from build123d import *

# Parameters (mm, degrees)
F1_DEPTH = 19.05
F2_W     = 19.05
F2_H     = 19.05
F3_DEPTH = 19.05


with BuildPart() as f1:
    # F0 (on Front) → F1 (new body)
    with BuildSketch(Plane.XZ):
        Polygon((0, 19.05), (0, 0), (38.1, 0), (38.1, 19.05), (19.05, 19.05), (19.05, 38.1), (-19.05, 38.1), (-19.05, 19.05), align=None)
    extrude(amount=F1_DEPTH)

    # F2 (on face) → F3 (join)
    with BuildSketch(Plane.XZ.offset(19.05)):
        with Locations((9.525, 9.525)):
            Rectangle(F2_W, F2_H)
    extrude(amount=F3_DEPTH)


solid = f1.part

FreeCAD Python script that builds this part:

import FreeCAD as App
import Part
import Sketcher
from FreeCAD import Vector
Q = App.Units.Quantity

doc = App.newDocument("Part")
body = doc.addObject("PartDesign::Body", "Body")

sketch1 = body.newObject("Sketcher::SketchObject", "Sketch")
sketch1.AttachmentSupport = (doc.getObject("XZ_Plane"), [""])
sketch1.MapMode = "FlatFace"
sketch1.addGeometry(Part.LineSegment(Vector(0, 19, 0), Vector(0, 0, 0)), False)
sketch1.addGeometry(Part.LineSegment(Vector(0, 0, 0), Vector(38, 0, 0)), False)
sketch1.addGeometry(Part.LineSegment(Vector(38, 0, 0), Vector(38, 19, 0)), False)
sketch1.addGeometry(Part.LineSegment(Vector(38, 19, 0), Vector(19, 19, 0)), False)
sketch1.addGeometry(Part.LineSegment(Vector(19, 19, 0), Vector(19, 38, 0)), False)
sketch1.addGeometry(Part.LineSegment(Vector(19, 38, 0), Vector(-19, 38, 0)), False)
sketch1.addGeometry(Part.LineSegment(Vector(-19, 38, 0), Vector(-19, 19, 0)), False)
sketch1.addGeometry(Part.LineSegment(Vector(-19, 19, 0), Vector(0, 19, 0)), False)
sketch1.addConstraint(Sketcher.Constraint("Coincident", 0, 2, 1, 1))
sketch1.addConstraint(Sketcher.Constraint("Coincident", 1, 2, 2, 1))
sketch1.addConstraint(Sketcher.Constraint("Coincident", 2, 2, 3, 1))
sketch1.addConstraint(Sketcher.Constraint("Coincident", 3, 2, 4, 1))
sketch1.addConstraint(Sketcher.Constraint("Coincident", 4, 2, 5, 1))
sketch1.addConstraint(Sketcher.Constraint("Coincident", 5, 2, 6, 1))
sketch1.addConstraint(Sketcher.Constraint("Coincident", 6, 2, 7, 1))
sketch1.addConstraint(Sketcher.Constraint("Coincident", 7, 2, 0, 1))
sketch1.addConstraint(Sketcher.Constraint("Vertical", 0))
sketch1.addConstraint(Sketcher.Constraint("Horizontal", 1))
sketch1.addConstraint(Sketcher.Constraint("Vertical", 2))
sketch1.addConstraint(Sketcher.Constraint("Horizontal", 3))
sketch1.addConstraint(Sketcher.Constraint("Vertical", 4))
sketch1.addConstraint(Sketcher.Constraint("Horizontal", 5))
sketch1.addConstraint(Sketcher.Constraint("Vertical", 6))
sketch1.addConstraint(Sketcher.Constraint("Horizontal", 7))
sketch1.addConstraint(Sketcher.Constraint("Coincident", 0, 2, -1, 1))
sketch1.addConstraint(Sketcher.Constraint("Symmetric", 3, 2, 6, 2, -2))
sketch1.addConstraint(Sketcher.Constraint("Equal", 1, 5))
sketch1.addConstraint(Sketcher.Constraint("Equal", 7, 0))
sketch1.addConstraint(Sketcher.Constraint("Equal", 2, 4))
sketch1.addConstraint(Sketcher.Constraint("DistanceX", 1, 1, 1, 2, Q("1.5 in")))
pad1 = body.newObject("PartDesign::Pad", "Pad")
pad1.Profile = sketch1
pad1.Length = Q("0.75 in")

sketch2 = body.newObject("Sketcher::SketchObject", "Sketch001")
sketch2.AttachmentSupport = (doc.getObject("XZ_Plane"), [""])
sketch2.MapMode = "FlatFace"
sketch2.AttachmentOffset = App.Placement(Vector(0, 0, 0.75 * 25.4), App.Rotation())
sketch2.addGeometry(Part.LineSegment(Vector(0, 19, 0), Vector(0, 0, 0)), False)
sketch2.addGeometry(Part.LineSegment(Vector(0, 0, 0), Vector(19, 0, 0)), False)
sketch2.addGeometry(Part.LineSegment(Vector(19, 0, 0), Vector(19, 19, 0)), False)
sketch2.addGeometry(Part.LineSegment(Vector(19, 19, 0), Vector(0, 19, 0)), False)
sketch2.addConstraint(Sketcher.Constraint("Coincident", 0, 2, 1, 1))
sketch2.addConstraint(Sketcher.Constraint("Coincident", 1, 2, 2, 1))
sketch2.addConstraint(Sketcher.Constraint("Coincident", 2, 2, 3, 1))
sketch2.addConstraint(Sketcher.Constraint("Coincident", 3, 2, 0, 1))
sketch2.addConstraint(Sketcher.Constraint("Vertical", 0))
sketch2.addConstraint(Sketcher.Constraint("Horizontal", 1))
sketch2.addConstraint(Sketcher.Constraint("Vertical", 2))
sketch2.addConstraint(Sketcher.Constraint("Horizontal", 3))
sketch2.addConstraint(Sketcher.Constraint("Coincident", 0, 2, -1, 1))
sketch2.addConstraint(Sketcher.Constraint("Equal", 3, 0))
sketch2.addConstraint(Sketcher.Constraint("DistanceX", 1, 1, 1, 2, Q("0.75 in")))
pad2 = body.newObject("PartDesign::Pad", "Pad001")
pad2.Profile = sketch2
pad2.Length = Q("0.75 in")

doc.recompute()
